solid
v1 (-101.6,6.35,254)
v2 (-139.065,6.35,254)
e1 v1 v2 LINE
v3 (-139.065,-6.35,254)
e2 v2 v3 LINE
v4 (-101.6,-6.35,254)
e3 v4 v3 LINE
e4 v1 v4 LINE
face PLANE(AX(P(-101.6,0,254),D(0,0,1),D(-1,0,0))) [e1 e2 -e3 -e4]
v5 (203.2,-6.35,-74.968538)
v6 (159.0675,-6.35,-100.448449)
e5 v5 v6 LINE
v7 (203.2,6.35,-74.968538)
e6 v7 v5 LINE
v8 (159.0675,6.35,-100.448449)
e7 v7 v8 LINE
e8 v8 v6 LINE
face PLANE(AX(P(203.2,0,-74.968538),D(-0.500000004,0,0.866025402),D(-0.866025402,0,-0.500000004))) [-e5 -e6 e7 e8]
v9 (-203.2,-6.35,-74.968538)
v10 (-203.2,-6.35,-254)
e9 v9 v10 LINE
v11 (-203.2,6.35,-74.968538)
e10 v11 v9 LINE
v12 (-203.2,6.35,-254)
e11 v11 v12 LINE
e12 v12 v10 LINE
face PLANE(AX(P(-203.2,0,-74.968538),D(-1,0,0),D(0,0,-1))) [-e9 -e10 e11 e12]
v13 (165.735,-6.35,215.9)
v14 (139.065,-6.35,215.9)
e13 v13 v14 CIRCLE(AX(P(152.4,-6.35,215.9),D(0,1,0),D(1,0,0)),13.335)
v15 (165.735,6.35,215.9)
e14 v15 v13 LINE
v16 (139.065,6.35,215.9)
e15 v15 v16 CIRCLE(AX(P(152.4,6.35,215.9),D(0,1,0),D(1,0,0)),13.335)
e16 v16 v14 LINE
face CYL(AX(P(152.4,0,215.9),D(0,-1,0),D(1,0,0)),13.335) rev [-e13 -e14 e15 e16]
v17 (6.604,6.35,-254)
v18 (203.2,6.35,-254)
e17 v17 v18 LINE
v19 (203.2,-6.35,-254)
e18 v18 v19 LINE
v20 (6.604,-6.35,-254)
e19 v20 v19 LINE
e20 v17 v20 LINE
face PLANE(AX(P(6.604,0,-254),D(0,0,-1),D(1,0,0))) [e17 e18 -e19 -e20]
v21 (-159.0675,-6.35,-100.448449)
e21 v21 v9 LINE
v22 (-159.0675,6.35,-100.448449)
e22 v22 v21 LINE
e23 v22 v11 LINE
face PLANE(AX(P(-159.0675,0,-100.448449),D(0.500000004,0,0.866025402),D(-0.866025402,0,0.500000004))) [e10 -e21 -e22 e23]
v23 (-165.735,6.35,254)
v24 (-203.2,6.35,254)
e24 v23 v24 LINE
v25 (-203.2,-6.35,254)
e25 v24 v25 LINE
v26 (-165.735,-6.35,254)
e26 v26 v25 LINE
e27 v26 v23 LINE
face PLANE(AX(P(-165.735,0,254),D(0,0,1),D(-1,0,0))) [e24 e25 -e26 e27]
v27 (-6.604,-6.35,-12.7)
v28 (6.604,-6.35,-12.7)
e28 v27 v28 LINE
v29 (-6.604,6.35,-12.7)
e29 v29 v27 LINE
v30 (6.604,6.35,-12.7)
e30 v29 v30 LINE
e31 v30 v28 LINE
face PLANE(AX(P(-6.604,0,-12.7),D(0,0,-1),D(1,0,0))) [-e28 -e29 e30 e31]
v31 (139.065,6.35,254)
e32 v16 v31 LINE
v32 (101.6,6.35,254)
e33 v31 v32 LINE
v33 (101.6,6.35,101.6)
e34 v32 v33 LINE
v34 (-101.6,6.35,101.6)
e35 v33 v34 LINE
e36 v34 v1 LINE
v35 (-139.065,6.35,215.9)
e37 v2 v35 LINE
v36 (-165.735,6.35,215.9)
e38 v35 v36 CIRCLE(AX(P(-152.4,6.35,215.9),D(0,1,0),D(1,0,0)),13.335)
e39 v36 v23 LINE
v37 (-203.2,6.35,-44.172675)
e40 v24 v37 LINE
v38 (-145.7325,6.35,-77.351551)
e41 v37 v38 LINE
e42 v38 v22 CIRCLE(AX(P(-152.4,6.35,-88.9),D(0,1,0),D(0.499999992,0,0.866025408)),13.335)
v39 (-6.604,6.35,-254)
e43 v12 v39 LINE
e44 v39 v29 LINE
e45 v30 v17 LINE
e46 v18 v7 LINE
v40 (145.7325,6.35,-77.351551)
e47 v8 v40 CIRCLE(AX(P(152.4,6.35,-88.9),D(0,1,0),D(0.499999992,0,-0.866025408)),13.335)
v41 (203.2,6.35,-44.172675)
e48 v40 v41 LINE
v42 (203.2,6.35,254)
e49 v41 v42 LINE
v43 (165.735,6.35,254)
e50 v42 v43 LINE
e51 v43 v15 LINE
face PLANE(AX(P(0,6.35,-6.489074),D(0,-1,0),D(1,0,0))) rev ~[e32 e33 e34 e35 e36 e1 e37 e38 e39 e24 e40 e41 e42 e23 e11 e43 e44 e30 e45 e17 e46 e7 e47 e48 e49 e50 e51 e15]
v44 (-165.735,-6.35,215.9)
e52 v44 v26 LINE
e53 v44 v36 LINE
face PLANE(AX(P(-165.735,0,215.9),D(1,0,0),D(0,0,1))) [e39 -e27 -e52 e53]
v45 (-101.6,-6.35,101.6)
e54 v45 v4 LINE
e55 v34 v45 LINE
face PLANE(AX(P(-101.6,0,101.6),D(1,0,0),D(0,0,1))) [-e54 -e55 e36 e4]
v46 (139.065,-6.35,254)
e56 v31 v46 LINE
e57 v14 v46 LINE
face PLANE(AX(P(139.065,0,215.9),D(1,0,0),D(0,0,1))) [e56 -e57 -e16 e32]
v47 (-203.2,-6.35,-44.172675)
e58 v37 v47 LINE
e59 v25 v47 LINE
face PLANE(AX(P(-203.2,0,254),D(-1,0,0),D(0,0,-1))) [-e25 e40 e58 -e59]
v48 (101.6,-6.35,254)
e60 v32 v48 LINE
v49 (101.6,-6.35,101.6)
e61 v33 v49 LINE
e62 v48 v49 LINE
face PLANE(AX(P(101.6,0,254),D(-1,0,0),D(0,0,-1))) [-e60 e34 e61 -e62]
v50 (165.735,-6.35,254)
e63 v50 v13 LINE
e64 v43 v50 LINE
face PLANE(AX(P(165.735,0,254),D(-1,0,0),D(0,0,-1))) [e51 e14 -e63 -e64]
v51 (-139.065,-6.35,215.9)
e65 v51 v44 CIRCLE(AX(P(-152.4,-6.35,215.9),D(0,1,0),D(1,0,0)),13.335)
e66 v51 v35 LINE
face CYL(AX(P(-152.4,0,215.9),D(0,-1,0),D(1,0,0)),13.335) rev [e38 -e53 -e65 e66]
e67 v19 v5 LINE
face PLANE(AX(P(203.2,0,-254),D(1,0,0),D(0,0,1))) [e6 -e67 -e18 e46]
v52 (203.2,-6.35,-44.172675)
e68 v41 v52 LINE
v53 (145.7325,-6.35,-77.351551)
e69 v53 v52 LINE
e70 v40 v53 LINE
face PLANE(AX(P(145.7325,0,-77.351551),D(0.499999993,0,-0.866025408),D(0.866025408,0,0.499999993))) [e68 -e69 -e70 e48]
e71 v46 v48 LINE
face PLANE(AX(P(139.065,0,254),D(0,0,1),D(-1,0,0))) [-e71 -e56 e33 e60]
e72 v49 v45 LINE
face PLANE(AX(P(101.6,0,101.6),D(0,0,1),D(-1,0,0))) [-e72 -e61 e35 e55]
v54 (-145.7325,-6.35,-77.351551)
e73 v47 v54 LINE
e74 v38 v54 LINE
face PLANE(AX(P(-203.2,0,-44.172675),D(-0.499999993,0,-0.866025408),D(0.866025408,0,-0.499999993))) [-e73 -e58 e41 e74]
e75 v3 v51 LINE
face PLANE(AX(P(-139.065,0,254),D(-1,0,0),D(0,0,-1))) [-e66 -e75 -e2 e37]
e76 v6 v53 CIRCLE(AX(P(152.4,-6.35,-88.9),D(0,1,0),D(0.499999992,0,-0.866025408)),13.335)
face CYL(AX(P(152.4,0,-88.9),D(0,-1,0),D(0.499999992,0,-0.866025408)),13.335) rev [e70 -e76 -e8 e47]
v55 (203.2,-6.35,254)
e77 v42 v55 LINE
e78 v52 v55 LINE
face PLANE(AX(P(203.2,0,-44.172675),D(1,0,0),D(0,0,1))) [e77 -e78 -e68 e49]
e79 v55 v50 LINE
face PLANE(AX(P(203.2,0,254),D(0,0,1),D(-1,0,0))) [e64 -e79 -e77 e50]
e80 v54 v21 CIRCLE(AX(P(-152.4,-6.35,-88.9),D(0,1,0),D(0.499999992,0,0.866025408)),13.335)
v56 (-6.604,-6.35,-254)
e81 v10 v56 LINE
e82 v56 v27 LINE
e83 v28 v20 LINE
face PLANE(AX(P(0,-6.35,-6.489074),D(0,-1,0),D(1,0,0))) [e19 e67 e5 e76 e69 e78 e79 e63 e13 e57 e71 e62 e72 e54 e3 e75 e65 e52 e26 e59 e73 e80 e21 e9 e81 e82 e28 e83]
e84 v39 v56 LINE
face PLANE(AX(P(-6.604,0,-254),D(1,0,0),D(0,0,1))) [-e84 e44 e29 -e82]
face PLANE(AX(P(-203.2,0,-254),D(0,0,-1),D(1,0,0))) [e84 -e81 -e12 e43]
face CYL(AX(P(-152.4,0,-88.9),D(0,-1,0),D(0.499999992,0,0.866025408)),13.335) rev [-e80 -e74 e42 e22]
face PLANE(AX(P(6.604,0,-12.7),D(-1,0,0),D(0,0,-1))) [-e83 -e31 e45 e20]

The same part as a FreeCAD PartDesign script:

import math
import FreeCAD as App
import Part
import Sketcher
from FreeCAD import Vector
Q = App.Units.Quantity

doc = App.newDocument("Part")
body = doc.addObject("PartDesign::Body", "Body")

sketch1 = body.newObject("Sketcher::SketchObject", "Sketch")
sketch1.AttachmentSupport = (doc.getObject("XZ_Plane"), [""])
sketch1.MapMode = "FlatFace"
sketch1.addGeometry(Part.LineSegment(Vector(-166, 254, 0), Vector(-203, 254, 0)), False)
sketch1.addGeometry(Part.LineSegment(Vector(-203, 254, 0), Vector(-203, -44, 0)), False)
sketch1.addGeometry(Part.LineSegment(Vector(-203, -44, 0), Vector(-146, -77, 0)), False)
sketch1.addGeometry(Part.ArcOfCircle(Part.Circle(Vector(-152, -89, 0), Vector(0, 0, 1), 13), math.radians(-120), math.radians(60)), False)
sketch1.addGeometry(Part.LineSegment(Vector(-159, -100, 0), Vector(-203, -75, 0)), False)
sketch1.addGeometry(Part.LineSegment(Vector(-203, -75, 0), Vector(-203, -254, 0)), False)
sketch1.addGeometry(Part.LineSegment(Vector(-203, -254, 0), Vector(-7, -254, 0)), False)
sketch1.addGeometry(Part.LineSegment(Vector(-7, -254, 0), Vector(-7, -13, 0)), False)
sketch1.addGeometry(Part.LineSegment(Vector(-7, -13, 0), Vector(7, -13, 0)), False)
sketch1.addGeometry(Part.LineSegment(Vector(7, -13, 0), Vector(7, -254, 0)), False)
sketch1.addGeometry(Part.LineSegment(Vector(7, -254, 0), Vector(203, -254, 0)), False)
sketch1.addGeometry(Part.LineSegment(Vector(203, -254, 0), Vector(203, -75, 0)), False)
sketch1.addGeometry(Part.LineSegment(Vector(203, -75, 0), Vector(159, -100, 0)), False)
sketch1.addGeometry(Part.ArcOfCircle(Part.Circle(Vector(152, -89, 0), Vector(0, 0, 1), 13), math.radians(120), math.radians(300)), False)
sketch1.addGeometry(Part.LineSegment(Vector(146, -77, 0), Vector(203, -44, 0)), False)
sketch1.addGeometry(Part.LineSegment(Vector(203, -44, 0), Vector(203, 254, 0)), False)
sketch1.addGeometry(Part.LineSegment(Vector(203, 254, 0), Vector(166, 254, 0)), False)
sketch1.addGeometry(Part.LineSegment(Vector(166, 254, 0), Vector(166, 216, 0)), False)
sketch1.addGeometry(Part.ArcOfCircle(Part.Circle(Vector(152, 216, 0), Vector(0, 0, 1), 13), math.radians(180), math.radians(360)), False)
sketch1.addGeometry(Part.LineSegment(Vector(139, 216, 0), Vector(139, 254, 0)), False)
sketch1.addGeometry(Part.LineSegment(Vector(139, 254, 0), Vector(102, 254, 0)), False)
sketch1.addGeometry(Part.LineSegment(Vector(102, 254, 0), Vector(102, 102, 0)), False)
sketch1.addGeometry(Part.LineSegment(Vector(102, 102, 0), Vector(-102, 102, 0)), False)
sketch1.addGeometry(Part.LineSegment(Vector(-102, 102, 0), Vector(-102, 254, 0)), False)
sketch1.addGeometry(Part.LineSegment(Vector(-102, 254, 0), Vector(-139, 254, 0)), False)
sketch1.addGeometry(Part.LineSegment(Vector(-139, 254, 0), Vector(-139, 216, 0)), False)
sketch1.addGeometry(Part.ArcOfCircle(Part.Circle(Vector(-152, 216, 0), Vector(0, 0, 1), 13), math.radians(180), math.radians(360)), False)
sketch1.addGeometry(Part.LineSegment(Vector(-166, 216, 0), Vector(-166, 254, 0)), False)
sketch1.addConstraint(Sketcher.Constraint("Coincident", 0, 2, 1, 1))
sketch1.addConstraint(Sketcher.Constraint("Coincident", 1, 2, 2, 1))
sketch1.addConstraint(Sketcher.Constraint("Tangent", 2, 2, 3, 2))
sketch1.addConstraint(Sketcher.Constraint("Tangent", 3, 1, 4, 1))
sketch1.addConstraint(Sketcher.Constraint("Coincident", 4, 2, 5, 1))
sketch1.addConstraint(Sketcher.Constraint("Coincident", 5, 2, 6, 1))
sketch1.addConstraint(Sketcher.Constraint("Coincident", 6, 2, 7, 1))
sketch1.addConstraint(Sketcher.Constraint("Coincident", 7, 2, 8, 1))
sketch1.addConstraint(Sketcher.Constraint("Coincident", 8, 2, 9, 1))
sketch1.addConstraint(Sketcher.Constraint("Coincident", 9, 2, 10, 1))
sketch1.addConstraint(Sketcher.Constraint("Coincident", 10, 2, 11, 1))
sketch1.addConstraint(Sketcher.Constraint("Coincident", 11, 2, 12, 1))
sketch1.addConstraint(Sketcher.Constraint("Tangent", 12, 2, 13, 2))
sketch1.addConstraint(Sketcher.Constraint("Tangent", 13, 1, 14, 1))
sketch1.addConstraint(Sketcher.Constraint("Coincident", 14, 2, 15, 1))
sketch1.addConstraint(Sketcher.Constraint("Coincident", 15, 2, 16, 1))
sketch1.addConstraint(Sketcher.Constraint("Coincident", 16, 2, 17, 1))
sketch1.addConstraint(Sketcher.Constraint("Tangent", 17, 2, 18, 2))
sketch1.addConstraint(Sketcher.Constraint("Tangent", 18, 1, 19, 1))
sketch1.addConstraint(Sketcher.Constraint("Coincident", 19, 2, 20, 1))
sketch1.addConstraint(Sketcher.Constraint("Coincident", 20, 2, 21, 1))
sketch1.addConstraint(Sketcher.Constraint("Coincident", 21, 2, 22, 1))
sketch1.addConstraint(Sketcher.Constraint("Coincident", 22, 2, 23, 1))
sketch1.addConstraint(Sketcher.Constraint("Coincident", 23, 2, 24, 1))
sketch1.addConstraint(Sketcher.Constraint("Coincident", 24, 2, 25, 1))
sketch1.addConstraint(Sketcher.Constraint("Tangent", 25, 2, 26, 2))
sketch1.addConstraint(Sketcher.Constraint("Tangent", 26, 1, 27, 1))
sketch1.addConstraint(Sketcher.Constraint("Coincident", 27, 2, 0, 1))
sketch1.addConstraint(Sketcher.Constraint("Horizontal", 0))
sketch1.addConstraint(Sketcher.Constraint("Vertical", 1))
sketch1.addConstraint(Sketcher.Constraint("Vertical", 5))
sketch1.addConstraint(Sketcher.Constraint("Horizontal", 6))
sketch1.addConstraint(Sketcher.Constraint("Vertical", 7))
sketch1.addConstraint(Sketcher.Constraint("Horizontal", 8))
sketch1.addConstraint(Sketcher.Constraint("Vertical", 9))
sketch1.addConstraint(Sketcher.Constraint("Horizontal", 10))
sketch1.addConstraint(Sketcher.Constraint("Vertical", 11))
sketch1.addConstraint(Sketcher.Constraint("Vertical", 15))
sketch1.addConstraint(Sketcher.Constraint("Horizontal", 16))
sketch1.addConstraint(Sketcher.Constraint("Vertical", 17))
sketch1.addConstraint(Sketcher.Constraint("Vertical", 19))
sketch1.addConstraint(Sketcher.Constraint("Horizontal", 20))
sketch1.addConstraint(Sketcher.Constraint("Vertical", 21))
sketch1.addConstraint(Sketcher.Constraint("Horizontal", 22))
sketch1.addConstraint(Sketcher.Constraint("Vertical", 23))
sketch1.addConstraint(Sketcher.Constraint("Horizontal", 24))
sketch1.addConstraint(Sketcher.Constraint("Vertical", 25))
sketch1.addConstraint(Sketcher.Constraint("Vertical", 27))
sketch1.addConstraint(Sketcher.Constraint("Equal", 3, 13))
sketch1.addConstraint(Sketcher.Constraint("Equal", 13, 18))
sketch1.addConstraint(Sketcher.Constraint("Equal", 18, 26))
sketch1.addConstraint(Sketcher.Constraint("Symmetric", 0, 2, 10, 2, -1, 1))
sketch1.addConstraint(Sketcher.Constraint("Symmetric", 5, 2, 15, 2, -1, 1))
sketch1.addConstraint(Sketcher.Constraint("Symmetric", 3, 3, 13, 3, -2))
sketch1.addConstraint(Sketcher.Constraint("Symmetric", 18, 3, 26, 3, -2))
sketch1.addConstraint(Sketcher.Constraint("Symmetric", 6, 2, 9, 2, -2))
sketch1.addConstraint(Sketcher.Constraint("Symmetric", 4, 2, 11, 2, -2))
sketch1.addConstraint(Sketcher.Constraint("Symmetric", 20, 2, 23, 2, -2))
sketch1.addConstraint(Sketcher.Constraint("Parallel", 2, 4))
sketch1.addConstraint(Sketcher.Constraint("Parallel", 12, 14))
sketch1.addConstraint(Sketcher.Constraint("Horizontal", 16, 2, 19, 2))
sketch1.addConstraint(Sketcher.Constraint("Vertical", 13, 3, 18, 3))
sketch1.addConstraint(Sketcher.Constraint("Equal", 16, 20))
sketch1.addConstraint(Sketcher.Constraint("DistanceX", 22, 2, 22, 1, Q("8 in")))
sketch1.addConstraint(Sketcher.Constraint("DistanceY", 21, 2, 21, 1, Q("6 in")))
sketch1.addConstraint(Sketcher.Constraint("DistanceY", 7, 1, 7, 2, Q("9.5 in")))
sketch1.addConstraint(Sketcher.Constraint("DistanceY", 17, 2, 17, 1, Q("1.5 in")))
sketch1.addConstraint(Sketcher.Constraint("DistanceX", 3, 3, -1, 1, Q("6 in")))
sketch1.addConstraint(Sketcher.Constraint("DistanceY", -1, 1, 0, 2, Q("10 in")))
sketch1.addConstraint(Sketcher.Constraint("Angle", 2, Q("-30 deg")))
sketch1.addConstraint(Sketcher.Constraint("Radius", 3, Q("0.525 in")))
sketch1.addConstraint(Sketcher.Constraint("DistanceY", 13, 3, 18, 3, Q("12 in")))
sketch1.addConstraint(Sketcher.Constraint("DistanceX", 6, 1, 6, 2, Q("7.74 in")))
pad1 = body.newObject("PartDesign::Pad", "Pad")
pad1.Profile = sketch1
pad1.Length = Q("0.5 in")
pad1.Midplane = True

doc.recompute()
